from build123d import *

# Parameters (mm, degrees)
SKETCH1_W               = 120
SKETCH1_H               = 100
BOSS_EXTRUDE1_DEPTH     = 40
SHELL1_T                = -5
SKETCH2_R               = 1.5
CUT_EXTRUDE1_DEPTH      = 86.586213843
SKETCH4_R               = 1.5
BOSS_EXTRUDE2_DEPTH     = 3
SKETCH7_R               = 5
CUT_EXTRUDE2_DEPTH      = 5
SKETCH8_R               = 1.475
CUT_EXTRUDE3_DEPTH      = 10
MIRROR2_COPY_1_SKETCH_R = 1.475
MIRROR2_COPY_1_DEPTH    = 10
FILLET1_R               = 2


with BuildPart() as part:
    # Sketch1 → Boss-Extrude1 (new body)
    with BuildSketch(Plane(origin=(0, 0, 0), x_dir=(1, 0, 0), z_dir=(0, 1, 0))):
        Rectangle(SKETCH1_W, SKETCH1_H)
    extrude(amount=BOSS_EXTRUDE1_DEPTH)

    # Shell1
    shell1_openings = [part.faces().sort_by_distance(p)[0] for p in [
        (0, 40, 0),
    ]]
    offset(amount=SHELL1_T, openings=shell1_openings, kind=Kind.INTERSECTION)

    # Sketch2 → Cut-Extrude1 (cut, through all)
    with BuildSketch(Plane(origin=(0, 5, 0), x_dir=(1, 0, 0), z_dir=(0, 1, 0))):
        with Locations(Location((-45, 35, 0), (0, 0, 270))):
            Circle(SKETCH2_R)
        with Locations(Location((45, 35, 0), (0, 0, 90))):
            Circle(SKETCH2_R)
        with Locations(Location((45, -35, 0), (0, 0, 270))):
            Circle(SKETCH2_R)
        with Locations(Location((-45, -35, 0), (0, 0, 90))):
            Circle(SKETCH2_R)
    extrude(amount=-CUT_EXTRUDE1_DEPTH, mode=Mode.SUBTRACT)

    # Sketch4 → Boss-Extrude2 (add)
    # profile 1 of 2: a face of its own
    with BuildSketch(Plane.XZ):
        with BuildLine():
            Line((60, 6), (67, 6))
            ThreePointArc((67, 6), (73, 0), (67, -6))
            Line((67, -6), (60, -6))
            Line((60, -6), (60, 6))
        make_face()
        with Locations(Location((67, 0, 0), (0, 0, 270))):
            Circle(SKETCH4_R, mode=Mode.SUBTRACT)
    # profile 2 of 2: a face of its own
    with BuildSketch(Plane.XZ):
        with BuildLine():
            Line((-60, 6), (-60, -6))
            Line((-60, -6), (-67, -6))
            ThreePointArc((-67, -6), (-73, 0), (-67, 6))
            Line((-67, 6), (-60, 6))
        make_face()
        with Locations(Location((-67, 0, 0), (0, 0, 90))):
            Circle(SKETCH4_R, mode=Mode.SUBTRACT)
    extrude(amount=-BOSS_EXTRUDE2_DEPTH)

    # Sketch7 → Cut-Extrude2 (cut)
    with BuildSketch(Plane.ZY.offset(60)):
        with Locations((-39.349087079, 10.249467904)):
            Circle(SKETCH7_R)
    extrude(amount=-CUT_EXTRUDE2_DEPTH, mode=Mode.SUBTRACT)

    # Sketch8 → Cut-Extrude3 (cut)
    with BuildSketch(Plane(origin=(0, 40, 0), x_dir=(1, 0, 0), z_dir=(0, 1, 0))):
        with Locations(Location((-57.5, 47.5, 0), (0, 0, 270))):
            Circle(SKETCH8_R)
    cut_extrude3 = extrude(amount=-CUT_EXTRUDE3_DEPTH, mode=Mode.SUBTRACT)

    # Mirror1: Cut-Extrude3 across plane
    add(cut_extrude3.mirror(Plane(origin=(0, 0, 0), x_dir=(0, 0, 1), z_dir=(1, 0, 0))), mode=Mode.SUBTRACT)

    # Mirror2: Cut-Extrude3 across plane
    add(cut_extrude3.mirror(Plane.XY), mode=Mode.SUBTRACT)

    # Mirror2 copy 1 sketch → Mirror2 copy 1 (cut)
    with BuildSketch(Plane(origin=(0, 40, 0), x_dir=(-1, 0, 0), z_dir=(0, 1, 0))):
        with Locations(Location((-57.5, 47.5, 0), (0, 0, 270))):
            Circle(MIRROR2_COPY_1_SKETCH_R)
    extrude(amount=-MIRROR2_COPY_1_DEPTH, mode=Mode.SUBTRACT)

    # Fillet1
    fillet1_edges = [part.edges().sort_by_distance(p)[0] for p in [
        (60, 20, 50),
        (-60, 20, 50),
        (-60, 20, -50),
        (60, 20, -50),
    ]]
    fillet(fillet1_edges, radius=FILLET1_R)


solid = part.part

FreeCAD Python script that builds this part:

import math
import FreeCAD as App
import Part
import Sketcher

V = App.Vector
Q = App.Units.Quantity


def edges_at(feature, points):
    """Names of the edges that pass closest to the given points."""
    edges = feature.Shape.Edges
    near = lambda p: min(range(len(edges)), key=lambda i: edges[i].distToShape(Part.Vertex(*p))[0])
    return sorted({f"Edge{near(p) + 1}" for p in points})


def faces_at(feature, points):
    """Names of the faces that lie closest to the given points."""
    faces = feature.Shape.Faces
    near = lambda p: min(range(len(faces)), key=lambda i: faces[i].distToShape(Part.Vertex(*p))[0])
    return sorted({f"Face{near(p) + 1}" for p in points})

doc = App.newDocument("Part")
body = doc.addObject("PartDesign::Body", "Body")

# Sketch on XZ plane
sketch1 = body.newObject("Sketcher::SketchObject", "Sketch")
sketch1.AttachmentSupport = (doc.getObject("XZ_Plane"), [""])
sketch1.MapMode = "FlatFace"
sketch1.addGeometry(Part.LineSegment(V(-60, -50, 0), V(-60, 50, 0)), False)
sketch1.addGeometry(Part.LineSegment(V(-60, 50, 0), V(60, 50, 0)), False)
sketch1.addGeometry(Part.LineSegment(V(60, 50, 0), V(60, -50, 0)), False)
sketch1.addGeometry(Part.LineSegment(V(60, -50, 0), V(-60, -50, 0)), False)
sketch1.addConstraint(Sketcher.Constraint("Coincident", 0, 2, 1, 1))
sketch1.addConstraint(Sketcher.Constraint("Coincident", 1, 2, 2, 1))
sketch1.addConstraint(Sketcher.Constraint("Coincident", 2, 2, 3, 1))
sketch1.addConstraint(Sketcher.Constraint("Coincident", 3, 2, 0, 1))
sketch1.addConstraint(Sketcher.Constraint("Vertical", 0))
sketch1.addConstraint(Sketcher.Constraint("Horizontal", 1))
sketch1.addConstraint(Sketcher.Constraint("Vertical", 2))
sketch1.addConstraint(Sketcher.Constraint("Horizontal", 3))
sketch1.addConstraint(Sketcher.Constraint("Symmetric", 0, 2, 2, 2, -1, 1))
sketch1.addConstraint(Sketcher.Constraint("DistanceX", 1, 1, 1, 2, Q("120 mm")))
sketch1.addConstraint(Sketcher.Constraint("DistanceY", 0, 1, 0, 2, Q("100 mm")))
pad1 = body.newObject("PartDesign::Pad", "Pad")
pad1.Profile = sketch1
pad1.Length = 40
pad1.Reversed = True
doc.recompute()

thickness = body.newObject("PartDesign::Thickness", "Thickness")
thickness.Base = (pad1, faces_at(pad1, [(0, 40, 0)]))
thickness.Value = 5
thickness.Reversed = True
thickness.Join = "Intersection"

# Sketch on XZ plane
sketch2 = body.newObject("Sketcher::SketchObject", "Sketch001")
sketch2.AttachmentSupport = (doc.getObject("XZ_Plane"), [""])
sketch2.MapMode = "FlatFace"
sketch2.AttachmentOffset = App.Placement(V(0, 0, -5), App.Rotation())
sketch2.addGeometry(Part.Circle(V(-45, -35, 0), V(0, 0, 1), 1.5), False)
sketch2.addGeometry(Part.Circle(V(45, -35, 0), V(0, 0, 1), 1.5), False)
sketch2.addGeometry(Part.Circle(V(45, 35, 0), V(0, 0, 1), 1.5), False)
sketch2.addGeometry(Part.Circle(V(-45, 35, 0), V(0, 0, 1), 1.5), False)
sketch2.addConstraint(Sketcher.Constraint("Equal", 0, 1))
sketch2.addConstraint(Sketcher.Constraint("Equal", 1, 2))
sketch2.addConstraint(Sketcher.Constraint("Equal", 2, 3))
sketch2.addConstraint(Sketcher.Constraint("Symmetric", 0, 3, 2, 3, -1, 1))
sketch2.addConstraint(Sketcher.Constraint("Symmetric", 1, 3, 3, 3, -1, 1))
sketch2.addConstraint(Sketcher.Constraint("Symmetric", 0, 3, 1, 3, -2))
sketch2.addConstraint(Sketcher.Constraint("Diameter", 0, Q("3 mm")))
sketch2.addConstraint(Sketcher.Constraint("DistanceX", 0, 3, -1, 1, Q("45 mm")))
sketch2.addConstraint(Sketcher.Constraint("DistanceY", 0, 3, -1, 1, Q("35 mm")))
pocket1 = body.newObject("PartDesign::Pocket", "Pocket")
pocket1.Profile = sketch2
pocket1.Type = "ThroughAll"
pocket1.Reversed = True

# Sketch on XZ plane
sketch3 = body.newObject("Sketcher::SketchObject", "Sketch002")
sketch3.AttachmentSupport = (doc.getObject("XZ_Plane"), [""])
sketch3.MapMode = "FlatFace"
sketch3.addGeometry(Part.LineSegment(V(67, 6, 0), V(60, 6, 0)), False)
sketch3.addGeometry(Part.LineSegment(V(60, 6, 0), V(60, -6, 0)), False)
sketch3.addGeometry(Part.LineSegment(V(60, -6, 0), V(67, -6, 0)), False)
sketch3.addGeometry(Part.ArcOfCircle(Part.Circle(V(67, 0, 0), V(0, 0, 1), 6), math.radians(-90), math.radians(90)), False)
sketch3.addGeometry(Part.Circle(V(67, 0, 0), V(0, 0, 1), 1.5), False)
sketch3.addGeometry(Part.LineSegment(V(-60, -6, 0), V(-60, 6, 0)), False)
sketch3.addGeometry(Part.LineSegment(V(-60, 6, 0), V(-67, 6, 0)), False)
sketch3.addGeometry(Part.ArcOfCircle(Part.Circle(V(-67, 0, 0), V(0, 0, 1), 6), math.radians(90), math.radians(270)), False)
sketch3.addGeometry(Part.LineSegment(V(-67, -6, 0), V(-60, -6, 0)), False)
sketch3.addGeometry(Part.Circle(V(-67, 0, 0), V(0, 0, 1), 1.5), False)
sketch3.addConstraint(Sketcher.Constraint("Coincident", 0, 2, 1, 1))
sketch3.addConstraint(Sketcher.Constraint("Coincident", 1, 2, 2, 1))
sketch3.addConstraint(Sketcher.Constraint("Tangent", 2, 2, 3, 1))
sketch3.addConstraint(Sketcher.Constraint("Tangent", 3, 2, 0, 1))
sketch3.addConstraint(Sketcher.Constraint("Coincident", 5, 2, 6, 1))
sketch3.addConstraint(Sketcher.Constraint("Tangent", 6, 2, 7, 1))
sketch3.addConstraint(Sketcher.Constraint("Tangent", 7, 2, 8, 1))
sketch3.addConstraint(Sketcher.Constraint("Coincident", 8, 2, 5, 1))
sketch3.addConstraint(Sketcher.Constraint("Horizontal", 0))
sketch3.addConstraint(Sketcher.Constraint("Vertical", 1))
sketch3.addConstraint(Sketcher.Constraint("Horizontal", 2))
sketch3.addConstraint(Sketcher.Constraint("Vertical", 5))
sketch3.addConstraint(Sketcher.Constraint("Horizontal", 6))
sketch3.addConstraint(Sketcher.Constraint("Horizontal", 8))
sketch3.addConstraint(Sketcher.Constraint("Coincident", 4, 3, 3, 3))
sketch3.addConstraint(Sketcher.Constraint("Coincident", 9, 3, 7, 3))
sketch3.addConstraint(Sketcher.Constraint("Equal", 3, 7))
sketch3.addConstraint(Sketcher.Constraint("Equal", 4, 9))
sketch3.addConstraint(Sketcher.Constraint("Symmetric", 3, 3, 7, 3, -1, 1))
sketch3.addConstraint(Sketcher.Constraint("Symmetric", 0, 2, 5, 2, -2))
sketch3.addConstraint(Sketcher.Constraint("Diameter", 4, Q("3 mm")))
sketch3.addConstraint(Sketcher.Constraint("Radius", 3, Q("6 mm")))
sketch3.addConstraint(Sketcher.Constraint("DistanceX", 0, 2, 0, 1, Q("7 mm")))
sketch3.addConstraint(Sketcher.Constraint("DistanceX", -1, 1, 3, 3, Q("67 mm")))
pad2 = body.newObject("PartDesign::Pad", "Pad001")
pad2.Profile = sketch3
pad2.Length = 3
pad2.Reversed = True

# Sketch on YZ plane
sketch4 = body.newObject("Sketcher::SketchObject", "Sketch003")
sketch4.AttachmentSupport = (doc.getObject("YZ_Plane"), [""])
sketch4.MapMode = "FlatFace"
sketch4.AttachmentOffset = App.Placement(V(0, 0, -60), App.Rotation())
sketch4.addGeometry(Part.Circle(V(10.249468, -39.349087, 0), V(0, 0, 1), 5), False)
sketch4.addConstraint(Sketcher.Constraint("Diameter", 0, Q("10 mm")))
sketch4.addConstraint(Sketcher.Constraint("DistanceX", -1, 1, 0, 3, Q("10.249468 mm")))
sketch4.addConstraint(Sketcher.Constraint("DistanceY", 0, 3, -1, 1, Q("39.349087 mm")))
pocket2 = body.newObject("PartDesign::Pocket", "Pocket001")
pocket2.Profile = sketch4
pocket2.Length = 5
pocket2.Reversed = True

# Sketch on XZ plane
sketch5 = body.newObject("Sketcher::SketchObject", "Sketch004")
sketch5.AttachmentSupport = (doc.getObject("XZ_Plane"), [""])
sketch5.MapMode = "FlatFace"
sketch5.AttachmentOffset = App.Placement(V(0, 0, -40), App.Rotation())
sketch5.addGeometry(Part.Circle(V(-57.5, -47.5, 0), V(0, 0, 1), 1.475), False)
sketch5.addConstraint(Sketcher.Constraint("Diameter", 0, Q("2.95 mm")))
sketch5.addConstraint(Sketcher.Constraint("DistanceX", 0, 3, -1, 1, Q("57.5 mm")))
sketch5.addConstraint(Sketcher.Constraint("DistanceY", 0, 3, -1, 1, Q("47.5 mm")))
pocket3 = body.newObject("PartDesign::Pocket", "Pocket002")
pocket3.Profile = sketch5
pocket3.Length = 10
pocket3.Reversed = True
doc.recompute()

mirrored = body.newObject("PartDesign::Mirrored", "Mirrored")
mirrored.Originals = [pocket3]
mirrored.MirrorPlane = (doc.getObject("YZ_Plane"), [""])
body.Tip = mirrored
doc.recompute()

mirrored2 = body.newObject("PartDesign::Mirrored", "Mirrored001")
mirrored2.Originals = [pocket3]
mirrored2.MirrorPlane = (doc.getObject("XY_Plane"), [""])
body.Tip = mirrored2

# Sketch on XZ plane
sketch6 = body.newObject("Sketcher::SketchObject", "Sketch005")
sketch6.AttachmentSupport = (doc.getObject("XZ_Plane"), [""])
sketch6.MapMode = "FlatFace"
sketch6.AttachmentOffset = App.Placement(V(0, 0, -40), App.Rotation())
sketch6.addGeometry(Part.Circle(V(57.5, 47.5, 0), V(0, 0, 1), 1.475), False)
sketch6.addConstraint(Sketcher.Constraint("Diameter", 0, Q("2.95 mm")))
sketch6.addConstraint(Sketcher.Constraint("DistanceX", -1, 1, 0, 3, Q("57.5 mm")))
sketch6.addConstraint(Sketcher.Constraint("DistanceY", -1, 1, 0, 3, Q("47.5 mm")))
pocket4 = body.newObject("PartDesign::Pocket", "Pocket003")
pocket4.Profile = sketch6
pocket4.Length = 10
pocket4.Reversed = True
doc.recompute()

fillet = body.newObject("PartDesign::Fillet", "Fillet")
fillet.Base = (pocket4, edges_at(pocket4, [
    (60, 20, 50),
    (-60, 20, 50),
    (-60, 20, -50),
    (60, 20, -50),
]))
fillet.Radius = 2

doc.recompute()
